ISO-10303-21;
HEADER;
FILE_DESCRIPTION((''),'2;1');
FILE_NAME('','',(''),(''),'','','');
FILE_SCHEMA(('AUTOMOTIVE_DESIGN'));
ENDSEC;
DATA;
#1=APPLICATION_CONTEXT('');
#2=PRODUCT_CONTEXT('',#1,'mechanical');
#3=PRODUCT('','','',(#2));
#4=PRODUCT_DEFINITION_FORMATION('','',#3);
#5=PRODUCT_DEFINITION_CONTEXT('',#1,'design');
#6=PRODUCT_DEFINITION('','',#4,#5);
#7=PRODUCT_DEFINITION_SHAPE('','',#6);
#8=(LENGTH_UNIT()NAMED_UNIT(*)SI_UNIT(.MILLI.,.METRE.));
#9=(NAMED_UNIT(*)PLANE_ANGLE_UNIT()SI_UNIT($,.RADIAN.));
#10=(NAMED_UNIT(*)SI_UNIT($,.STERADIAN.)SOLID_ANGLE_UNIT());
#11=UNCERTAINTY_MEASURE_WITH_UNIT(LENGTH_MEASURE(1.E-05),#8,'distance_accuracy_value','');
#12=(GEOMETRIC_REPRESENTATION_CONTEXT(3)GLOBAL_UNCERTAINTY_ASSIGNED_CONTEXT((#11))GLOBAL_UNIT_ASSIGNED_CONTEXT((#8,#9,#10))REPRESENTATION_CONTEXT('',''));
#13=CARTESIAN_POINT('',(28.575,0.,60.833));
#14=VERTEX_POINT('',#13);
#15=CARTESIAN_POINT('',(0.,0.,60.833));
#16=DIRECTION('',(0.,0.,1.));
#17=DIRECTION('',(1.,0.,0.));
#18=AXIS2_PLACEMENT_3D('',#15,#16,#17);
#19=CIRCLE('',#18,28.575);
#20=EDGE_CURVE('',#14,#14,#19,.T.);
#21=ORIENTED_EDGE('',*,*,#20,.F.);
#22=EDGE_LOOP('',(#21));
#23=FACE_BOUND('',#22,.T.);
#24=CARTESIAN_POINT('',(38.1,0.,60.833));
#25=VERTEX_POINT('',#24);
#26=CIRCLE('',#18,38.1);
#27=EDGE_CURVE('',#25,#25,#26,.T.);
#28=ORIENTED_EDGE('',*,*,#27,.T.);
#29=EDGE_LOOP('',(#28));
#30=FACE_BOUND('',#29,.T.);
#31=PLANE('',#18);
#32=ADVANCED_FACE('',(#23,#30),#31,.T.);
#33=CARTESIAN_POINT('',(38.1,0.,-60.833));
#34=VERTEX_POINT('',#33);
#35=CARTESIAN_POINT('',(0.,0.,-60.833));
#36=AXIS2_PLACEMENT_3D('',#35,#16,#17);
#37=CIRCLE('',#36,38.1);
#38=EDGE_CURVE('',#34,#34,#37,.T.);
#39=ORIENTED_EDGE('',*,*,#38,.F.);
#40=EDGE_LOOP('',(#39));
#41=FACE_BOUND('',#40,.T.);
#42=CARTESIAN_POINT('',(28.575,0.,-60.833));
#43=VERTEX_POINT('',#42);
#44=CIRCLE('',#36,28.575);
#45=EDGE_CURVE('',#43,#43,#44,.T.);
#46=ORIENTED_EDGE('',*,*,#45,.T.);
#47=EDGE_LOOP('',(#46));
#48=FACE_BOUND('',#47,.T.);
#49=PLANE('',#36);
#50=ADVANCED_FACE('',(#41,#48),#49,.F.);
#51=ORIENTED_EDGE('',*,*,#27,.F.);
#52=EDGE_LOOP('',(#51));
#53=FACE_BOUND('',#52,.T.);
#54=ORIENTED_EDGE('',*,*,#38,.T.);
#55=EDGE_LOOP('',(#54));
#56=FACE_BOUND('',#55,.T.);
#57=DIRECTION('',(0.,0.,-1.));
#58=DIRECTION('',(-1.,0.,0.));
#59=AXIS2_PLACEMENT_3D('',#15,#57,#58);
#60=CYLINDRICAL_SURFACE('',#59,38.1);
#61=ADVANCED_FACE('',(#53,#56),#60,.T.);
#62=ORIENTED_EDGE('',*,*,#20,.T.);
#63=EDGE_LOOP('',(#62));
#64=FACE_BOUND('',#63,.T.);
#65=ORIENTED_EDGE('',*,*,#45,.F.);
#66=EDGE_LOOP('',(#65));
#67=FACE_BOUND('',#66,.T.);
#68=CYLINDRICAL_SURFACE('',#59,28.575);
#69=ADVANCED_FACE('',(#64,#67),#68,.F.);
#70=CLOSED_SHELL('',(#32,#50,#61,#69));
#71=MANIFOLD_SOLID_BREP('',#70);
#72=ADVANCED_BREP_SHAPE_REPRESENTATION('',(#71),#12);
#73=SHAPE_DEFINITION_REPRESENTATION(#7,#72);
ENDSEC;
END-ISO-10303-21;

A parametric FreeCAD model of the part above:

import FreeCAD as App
import Part
import Sketcher
Q = App.Units.Quantity

doc = App.newDocument("Part")
body = doc.addObject("PartDesign::Body", "Body")

# Sketch on XY plane
sketch1 = body.newObject("Sketcher::SketchObject", "Sketch")
sketch1.AttachmentSupport = (doc.getObject("XY_Plane"), [""])
sketch1.MapMode = "FlatFace"
sketch1.addGeometry([
    Part.Circle(App.Vector(0, 0, 0), App.Vector(0, 0, 1), 38),
    Part.Circle(App.Vector(0, 0, 0), App.Vector(0, 0, 1), 29),
], False)
sketch1.addConstraint([
    Sketcher.Constraint("Coincident", 0, 3, -1, 1),
    Sketcher.Constraint("Coincident", 1, 3, -1, 1),
    Sketcher.Constraint("Diameter", 0, Q("3 in")),
    Sketcher.Constraint("Diameter", 1, Q("2.25 in")),
])
pad1 = body.newObject("PartDesign::Pad", "Pad")
pad1.Profile = sketch1
pad1.Length = Q("4.79 in")
pad1.Midplane = True

doc.recompute()
